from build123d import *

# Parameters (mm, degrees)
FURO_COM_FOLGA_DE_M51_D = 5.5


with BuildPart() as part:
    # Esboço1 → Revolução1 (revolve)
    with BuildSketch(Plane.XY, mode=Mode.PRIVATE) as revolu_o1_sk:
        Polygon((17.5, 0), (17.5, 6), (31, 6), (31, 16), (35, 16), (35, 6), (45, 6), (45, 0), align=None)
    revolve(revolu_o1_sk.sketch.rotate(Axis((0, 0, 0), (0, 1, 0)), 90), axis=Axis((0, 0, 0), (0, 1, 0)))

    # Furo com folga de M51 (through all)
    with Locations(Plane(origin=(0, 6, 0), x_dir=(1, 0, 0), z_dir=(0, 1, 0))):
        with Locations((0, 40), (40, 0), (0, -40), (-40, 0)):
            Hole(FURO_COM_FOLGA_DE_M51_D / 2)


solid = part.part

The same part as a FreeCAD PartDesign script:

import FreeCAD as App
import Part
import Sketcher

V = App.Vector
Q = App.Units.Quantity

doc = App.newDocument("Part")
body = doc.addObject("PartDesign::Body", "Body")

# Sketch on XY plane
sketch1 = body.newObject("Sketcher::SketchObject", "Sketch")
sketch1.AttachmentSupport = (doc.getObject("XY_Plane"), [""])
sketch1.MapMode = "FlatFace"
sketch1.addGeometry([
    Part.LineSegment(V(17.5, 6, 0), V(17.5, 0, 0)),  # 0
    Part.LineSegment(V(17.5, 0, 0), V(45, 0, 0)),  # 1
    Part.LineSegment(V(45, 0, 0), V(45, 6, 0)),  # 2
    Part.LineSegment(V(45, 6, 0), V(35, 6, 0)),  # 3
    Part.LineSegment(V(35, 6, 0), V(35, 16, 0)),  # 4
    Part.LineSegment(V(35, 16, 0), V(31, 16, 0)),  # 5
    Part.LineSegment(V(31, 16, 0), V(31, 6, 0)),  # 6
    Part.LineSegment(V(31, 6, 0), V(17.5, 6, 0)),  # 7
], False)
sketch1.addConstraint([
    Sketcher.Constraint("Coincident", 0, 2, 1, 1),
    Sketcher.Constraint("Coincident", 1, 2, 2, 1),
    Sketcher.Constraint("Coincident", 2, 2, 3, 1),
    Sketcher.Constraint("Coincident", 3, 2, 4, 1),
    Sketcher.Constraint("Coincident", 4, 2, 5, 1),
    Sketcher.Constraint("Coincident", 5, 2, 6, 1),
    Sketcher.Constraint("Coincident", 6, 2, 7, 1),
    Sketcher.Constraint("Coincident", 7, 2, 0, 1),
    Sketcher.Constraint("Vertical", 0),
    Sketcher.Constraint("Horizontal", 1),
    Sketcher.Constraint("Vertical", 2),
    Sketcher.Constraint("Horizontal", 3),
    Sketcher.Constraint("Vertical", 4),
    Sketcher.Constraint("Horizontal", 5),
    Sketcher.Constraint("Vertical", 6),
    Sketcher.Constraint("Horizontal", 7),
    Sketcher.Constraint("PointOnObject", 0, 2, -1),
    Sketcher.Constraint("Horizontal", 3, 2, 6, 2),
    Sketcher.Constraint("Equal", 3, 4),
    Sketcher.Constraint("DistanceX", 3, 2, 3, 1, Q("10 mm")),
    Sketcher.Constraint("DistanceX", 5, 2, 5, 1, Q("4 mm")),
    Sketcher.Constraint("DistanceY", 0, 2, 0, 1, Q("6 mm")),
    Sketcher.Constraint("DistanceX", 1, 1, 1, 2, Q("27.5 mm")),
    Sketcher.Constraint("DistanceX", -1, 1, 1, 2, Q("45 mm")),
])
revolution = body.newObject("PartDesign::Revolution", "Revolution")
revolution.Profile = sketch1
revolution.ReferenceAxis = (sketch1, ["V_Axis"])
revolution.Angle = 360

# Sketch on XZ plane
sketch2 = body.newObject("Sketcher::SketchObject", "Sketch001")
sketch2.AttachmentSupport = (doc.getObject("XZ_Plane"), [""])
sketch2.MapMode = "FlatFace"
sketch2.AttachmentOffset = App.Placement(V(0, 0, -6), App.Rotation())
sketch2.addGeometry([
    Part.Circle(V(0, -40, 0), V(0, 0, 1), 2.8),
    Part.Circle(V(40, 0, 0), V(0, 0, 1), 2.8),
    Part.Circle(V(0, 40, 0), V(0, 0, 1), 2.8),
    Part.Circle(V(-40, 0, 0), V(0, 0, 1), 2.8),
], False)
sketch2.addConstraint([
    Sketcher.Constraint("Equal", 0, 1),
    Sketcher.Constraint("Equal", 1, 2),
    Sketcher.Constraint("Equal", 2, 3),
    Sketcher.Constraint("Symmetric", 0, 3, 2, 3, -1, 1),
    Sketcher.Constraint("Symmetric", 1, 3, 3, 3, -1, 1),
    Sketcher.Constraint("PointOnObject", 0, 3, -2),
    Sketcher.Constraint("PointOnObject", 1, 3, -1),
    Sketcher.Constraint("Diameter", 0, Q("5.5 mm")),
    Sketcher.Constraint("DistanceY", 0, 3, -1, 1, Q("40 mm")),
    Sketcher.Constraint("DistanceX", -1, 1, 1, 3, Q("40 mm")),
])
doc.recompute()
hole = body.newObject("PartDesign::Hole", "Hole")
hole.Profile = sketch2
hole.ThreadType = "None"
hole.Diameter = 5.5
hole.DepthType = "ThroughAll"
hole.Reversed = True

doc.recompute()
